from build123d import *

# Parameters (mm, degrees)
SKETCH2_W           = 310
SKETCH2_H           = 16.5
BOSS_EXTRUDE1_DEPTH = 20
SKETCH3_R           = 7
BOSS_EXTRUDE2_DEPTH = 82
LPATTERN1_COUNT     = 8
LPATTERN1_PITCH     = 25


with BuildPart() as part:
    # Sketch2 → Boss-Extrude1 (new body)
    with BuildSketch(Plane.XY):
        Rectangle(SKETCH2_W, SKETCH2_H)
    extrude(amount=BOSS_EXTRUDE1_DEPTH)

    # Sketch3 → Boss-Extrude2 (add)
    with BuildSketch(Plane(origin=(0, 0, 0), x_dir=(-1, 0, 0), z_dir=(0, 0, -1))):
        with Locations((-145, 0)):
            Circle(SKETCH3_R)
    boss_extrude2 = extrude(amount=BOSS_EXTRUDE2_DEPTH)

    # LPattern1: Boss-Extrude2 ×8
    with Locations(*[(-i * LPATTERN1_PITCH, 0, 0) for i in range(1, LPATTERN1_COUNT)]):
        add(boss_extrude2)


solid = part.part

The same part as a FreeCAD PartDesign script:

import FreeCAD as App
import Part
import Sketcher

V = App.Vector

doc = App.newDocument("Part")
body = doc.addObject("PartDesign::Body", "Body")

sketch1 = doc.addObject("Sketcher::SketchObject", "Sketch")
body.addObject(sketch1)
sketch1.AttachmentSupport = (doc.XY_Plane, [""])
sketch1.MapMode = "FlatFace"
sketch1.addGeometry([
    Part.LineSegment(V(-155, 8.25, 0), V(-155, -8.25, 0)),
    Part.LineSegment(V(-155, -8.25, 0), V(155, -8.25, 0)),
    Part.LineSegment(V(155, -8.25, 0), V(155, 8.25, 0)),
    Part.LineSegment(V(155, 8.25, 0), V(-155, 8.25, 0)),
], False)
sketch1.addConstraint([
    Sketcher.Constraint("Coincident", 0, 2, 1, 1),
    Sketcher.Constraint("Coincident", 1, 2, 2, 1),
    Sketcher.Constraint("Coincident", 2, 2, 3, 1),
    Sketcher.Constraint("Coincident", 3, 2, 0, 1),
    Sketcher.Constraint("Vertical", 0),
    Sketcher.Constraint("Horizontal", 1),
    Sketcher.Constraint("Vertical", 2),
    Sketcher.Constraint("Horizontal", 3),
    Sketcher.Constraint("Symmetric", 0, 2, 2, 2, -1, 1),
    Sketcher.Constraint("DistanceX", 1, 1, 1, 2, 310.0),
    Sketcher.Constraint("DistanceY", 0, 2, 0, 1, 16.5),
])
pad1 = doc.addObject("PartDesign::Pad", "Pad")
body.addObject(pad1)
pad1.Profile = sketch1
pad1.Length = 20

sketch2 = doc.addObject("Sketcher::SketchObject", "Sketch001")
body.addObject(sketch2)
sketch2.AttachmentSupport = (doc.XY_Plane, [""])
sketch2.MapMode = "FlatFace"
sketch2.addGeometry(Part.Circle(V(145, 0, 0), V(0, 0, 1), 7), False)
sketch2.addConstraint([
    Sketcher.Constraint("PointOnObject", 0, 3, -1),
    Sketcher.Constraint("Diameter", 0, 14.0),
    Sketcher.Constraint("DistanceX", -1, 1, 0, 3, 145.0),
])
pad2 = doc.addObject("PartDesign::Pad", "Pad001")
body.addObject(pad2)
pad2.Profile = sketch2
pad2.Length = 82
pad2.Reversed = True
doc.recompute()

linearpattern = doc.addObject("PartDesign::LinearPattern", "LinearPattern")
body.addObject(linearpattern)
linearpattern.Originals = [pad2]
linearpattern.Direction = (doc.X_Axis, [""])
linearpattern.Mode = "offset"
linearpattern.Offset = 25
linearpattern.Occurrences = 8
linearpattern.Reversed = True
body.Tip = linearpattern

doc.recompute()
